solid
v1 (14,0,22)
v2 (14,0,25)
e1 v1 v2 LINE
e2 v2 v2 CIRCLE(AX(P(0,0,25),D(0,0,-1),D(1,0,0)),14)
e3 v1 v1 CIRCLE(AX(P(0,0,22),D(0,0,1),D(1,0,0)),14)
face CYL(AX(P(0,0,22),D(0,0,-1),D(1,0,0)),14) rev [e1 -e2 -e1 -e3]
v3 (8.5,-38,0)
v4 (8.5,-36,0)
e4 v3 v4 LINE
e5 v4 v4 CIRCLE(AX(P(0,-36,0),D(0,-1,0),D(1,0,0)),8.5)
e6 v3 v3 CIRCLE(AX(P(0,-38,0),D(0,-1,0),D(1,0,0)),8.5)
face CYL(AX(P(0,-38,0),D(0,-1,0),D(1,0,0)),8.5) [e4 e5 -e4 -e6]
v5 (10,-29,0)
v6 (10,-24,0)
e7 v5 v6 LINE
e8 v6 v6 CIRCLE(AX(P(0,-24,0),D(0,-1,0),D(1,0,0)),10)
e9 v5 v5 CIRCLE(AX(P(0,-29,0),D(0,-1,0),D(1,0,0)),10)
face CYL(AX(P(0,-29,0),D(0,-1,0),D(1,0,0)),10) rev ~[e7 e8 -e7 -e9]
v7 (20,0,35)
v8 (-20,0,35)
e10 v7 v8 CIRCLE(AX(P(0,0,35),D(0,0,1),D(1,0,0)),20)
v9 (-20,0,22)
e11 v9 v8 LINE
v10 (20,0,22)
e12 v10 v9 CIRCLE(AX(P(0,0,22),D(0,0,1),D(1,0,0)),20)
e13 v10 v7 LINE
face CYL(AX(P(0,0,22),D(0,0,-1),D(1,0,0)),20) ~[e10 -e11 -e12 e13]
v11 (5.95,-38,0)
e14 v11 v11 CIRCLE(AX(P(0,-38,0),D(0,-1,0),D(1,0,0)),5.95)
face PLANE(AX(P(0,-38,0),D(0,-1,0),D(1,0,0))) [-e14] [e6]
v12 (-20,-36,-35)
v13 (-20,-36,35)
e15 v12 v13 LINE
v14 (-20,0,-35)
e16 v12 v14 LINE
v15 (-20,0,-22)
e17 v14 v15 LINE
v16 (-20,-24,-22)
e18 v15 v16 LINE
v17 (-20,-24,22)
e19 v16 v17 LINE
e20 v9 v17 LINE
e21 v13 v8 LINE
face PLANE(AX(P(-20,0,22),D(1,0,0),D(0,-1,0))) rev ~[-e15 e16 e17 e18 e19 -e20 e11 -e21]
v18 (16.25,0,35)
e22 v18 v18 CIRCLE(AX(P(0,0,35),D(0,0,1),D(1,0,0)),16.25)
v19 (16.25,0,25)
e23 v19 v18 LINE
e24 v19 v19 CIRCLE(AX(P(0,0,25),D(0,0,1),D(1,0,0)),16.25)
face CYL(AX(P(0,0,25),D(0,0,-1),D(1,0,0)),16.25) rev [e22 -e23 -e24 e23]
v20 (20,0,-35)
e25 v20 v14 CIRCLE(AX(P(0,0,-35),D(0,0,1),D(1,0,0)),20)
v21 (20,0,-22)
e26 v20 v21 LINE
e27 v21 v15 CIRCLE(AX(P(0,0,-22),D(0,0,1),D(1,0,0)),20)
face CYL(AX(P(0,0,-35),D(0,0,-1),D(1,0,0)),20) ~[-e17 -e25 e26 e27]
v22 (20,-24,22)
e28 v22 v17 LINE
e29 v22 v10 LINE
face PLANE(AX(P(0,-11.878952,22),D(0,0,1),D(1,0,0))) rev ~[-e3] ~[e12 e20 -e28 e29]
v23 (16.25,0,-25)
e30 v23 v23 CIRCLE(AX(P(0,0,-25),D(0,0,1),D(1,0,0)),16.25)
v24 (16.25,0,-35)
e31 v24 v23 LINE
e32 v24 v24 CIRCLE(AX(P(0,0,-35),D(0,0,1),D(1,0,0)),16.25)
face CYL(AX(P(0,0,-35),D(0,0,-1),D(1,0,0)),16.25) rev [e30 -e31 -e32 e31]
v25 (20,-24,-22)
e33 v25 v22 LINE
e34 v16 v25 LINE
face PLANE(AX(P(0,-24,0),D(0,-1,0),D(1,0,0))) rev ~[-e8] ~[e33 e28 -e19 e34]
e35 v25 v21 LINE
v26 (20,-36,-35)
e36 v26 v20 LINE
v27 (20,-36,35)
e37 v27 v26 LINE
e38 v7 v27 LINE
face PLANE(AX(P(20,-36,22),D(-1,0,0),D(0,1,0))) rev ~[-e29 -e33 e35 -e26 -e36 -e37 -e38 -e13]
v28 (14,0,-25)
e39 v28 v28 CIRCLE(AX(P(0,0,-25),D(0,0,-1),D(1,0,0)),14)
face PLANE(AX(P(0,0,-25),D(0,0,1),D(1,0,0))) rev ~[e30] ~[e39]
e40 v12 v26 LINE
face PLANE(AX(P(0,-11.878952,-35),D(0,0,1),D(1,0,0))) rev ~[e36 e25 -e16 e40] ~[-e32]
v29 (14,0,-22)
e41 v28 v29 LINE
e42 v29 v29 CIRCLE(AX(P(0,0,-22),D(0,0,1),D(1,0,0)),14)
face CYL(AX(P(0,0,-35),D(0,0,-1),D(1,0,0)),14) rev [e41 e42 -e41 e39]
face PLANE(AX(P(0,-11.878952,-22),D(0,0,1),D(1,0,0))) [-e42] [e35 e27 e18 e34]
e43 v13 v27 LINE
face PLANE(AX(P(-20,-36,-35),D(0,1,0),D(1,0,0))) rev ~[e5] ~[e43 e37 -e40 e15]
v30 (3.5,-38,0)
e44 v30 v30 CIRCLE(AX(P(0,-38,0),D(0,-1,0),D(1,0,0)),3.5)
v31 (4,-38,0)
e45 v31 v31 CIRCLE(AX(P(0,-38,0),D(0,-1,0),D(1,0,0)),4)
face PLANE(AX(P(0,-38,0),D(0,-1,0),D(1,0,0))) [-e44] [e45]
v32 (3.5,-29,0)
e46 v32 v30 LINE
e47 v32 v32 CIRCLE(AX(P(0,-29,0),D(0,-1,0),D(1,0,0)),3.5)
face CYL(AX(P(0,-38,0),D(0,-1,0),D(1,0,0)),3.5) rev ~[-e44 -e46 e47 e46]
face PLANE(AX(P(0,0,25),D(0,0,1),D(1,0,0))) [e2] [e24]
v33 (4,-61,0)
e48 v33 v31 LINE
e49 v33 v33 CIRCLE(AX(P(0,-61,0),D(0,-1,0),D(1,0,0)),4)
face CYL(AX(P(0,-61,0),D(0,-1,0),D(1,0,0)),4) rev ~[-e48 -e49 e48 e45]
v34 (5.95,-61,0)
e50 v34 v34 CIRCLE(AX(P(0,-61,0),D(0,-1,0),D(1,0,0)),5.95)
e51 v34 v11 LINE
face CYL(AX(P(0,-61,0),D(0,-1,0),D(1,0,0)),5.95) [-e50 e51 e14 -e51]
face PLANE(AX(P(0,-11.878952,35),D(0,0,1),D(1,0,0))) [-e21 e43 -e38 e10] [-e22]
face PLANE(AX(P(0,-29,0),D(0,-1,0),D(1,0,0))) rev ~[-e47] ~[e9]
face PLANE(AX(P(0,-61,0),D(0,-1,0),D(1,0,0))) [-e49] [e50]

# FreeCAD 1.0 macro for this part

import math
import FreeCAD as App
import Part
import Sketcher

V = App.Vector

doc = App.newDocument("Part")
body = doc.addObject("PartDesign::Body", "Body")

# Sketch on XY plane
sketch1 = doc.addObject("Sketcher::SketchObject", "Sketch")
body.addObject(sketch1)
sketch1.AttachmentSupport = (doc.XY_Plane, [""])
sketch1.MapMode = "FlatFace"
sketch1.addGeometry(Part.Circle(V(0, 0, 0), V(0, 0, 1), 10), False)
sketch1.addConstraint(Sketcher.Constraint("Coincident", 0, 3, -1, 1))
sketch1.addConstraint(Sketcher.Constraint("Diameter", 0, 20.0))
pad1 = doc.addObject("PartDesign::Pad", "Pad")
body.addObject(pad1)
pad1.Profile = sketch1
pad1.Length = 5
pad1.Reversed = True
body2 = doc.addObject("PartDesign::Body", "Body001")
doc.recompute()

body.Placement = App.Placement(V(0, 0, 0), App.Rotation(V(1, 0, 0), 90))
boolean = doc.addObject("PartDesign::Boolean", "Boolean")
body2.addObject(boolean)
boolean.Type = "Fuse"
boolean.addObjects([body])
body3 = doc.addObject("PartDesign::Body", "Body002")
doc.recompute()

body2.Placement = App.Placement(V(0, 7, 0), App.Rotation(V(0, 0, 1), 0))
boolean2 = doc.addObject("PartDesign::Boolean", "Boolean001")
body3.addObject(boolean2)
boolean2.Type = "Fuse"
boolean2.addObjects([body2])
body4 = doc.addObject("PartDesign::Body", "Body003")

# Sketch on XY plane
sketch2 = doc.addObject("Sketcher::SketchObject", "Sketch001")
body4.addObject(sketch2)
sketch2.AttachmentSupport = (doc.getObject("XY_Plane003"), [""])
sketch2.MapMode = "FlatFace"
sketch2.addGeometry(Part.LineSegment(V(-20, 35, 0), V(-20, -35, 0)), False)
sketch2.addGeometry(Part.LineSegment(V(-20, -35, 0), V(20, -35, 0)), False)
sketch2.addGeometry(Part.LineSegment(V(20, -35, 0), V(20, 35, 0)), False)
sketch2.addGeometry(Part.LineSegment(V(20, 35, 0), V(-20, 35, 0)), False)
sketch2.addGeometry(Part.Circle(V(0, 0, 0), V(0, 0, 1), 3.5), False)
sketch2.addConstraint(Sketcher.Constraint("Coincident", 0, 2, 1, 1))
sketch2.addConstraint(Sketcher.Constraint("Coincident", 1, 2, 2, 1))
sketch2.addConstraint(Sketcher.Constraint("Coincident", 2, 2, 3, 1))
sketch2.addConstraint(Sketcher.Constraint("Coincident", 3, 2, 0, 1))
sketch2.addConstraint(Sketcher.Constraint("Vertical", 0))
sketch2.addConstraint(Sketcher.Constraint("Horizontal", 1))
sketch2.addConstraint(Sketcher.Constraint("Vertical", 2))
sketch2.addConstraint(Sketcher.Constraint("Horizontal", 3))
sketch2.addConstraint(Sketcher.Constraint("Coincident", 4, 3, -1, 1))
sketch2.addConstraint(Sketcher.Constraint("Symmetric", 0, 2, 2, 2, -1, 1))
sketch2.addConstraint(Sketcher.Constraint("Diameter", 4, 7.0))
sketch2.addConstraint(Sketcher.Constraint("DistanceX", 1, 1, 1, 2, 40.0))
sketch2.addConstraint(Sketcher.Constraint("DistanceY", 0, 2, 0, 1, 70.0))
pad2 = doc.addObject("PartDesign::Pad", "Pad001")
body4.addObject(pad2)
pad2.Profile = sketch2
pad2.Length = 12
pad2.Reversed = True
body5 = doc.addObject("PartDesign::Body", "Body004")
doc.recompute()

body4.Placement = App.Placement(V(0, 0, 0), App.Rotation(V(1, 0, 0), 90))
boolean3 = doc.addObject("PartDesign::Boolean", "Boolean002")
body5.addObject(boolean3)
boolean3.Type = "Fuse"
boolean3.addObjects([body4])
doc.recompute()

boolean4 = doc.addObject("PartDesign::Boolean", "Boolean003")
body5.addObject(boolean4)
boolean4.Type = "Cut"
boolean4.addObjects([body3])
body6 = doc.addObject("PartDesign::Body", "Body005")
doc.recompute()

body5.Placement = App.Placement(V(0, -36, 0), App.Rotation(V(0, 0, 1), 0))
boolean5 = doc.addObject("PartDesign::Boolean", "Boolean004")
body6.addObject(boolean5)
boolean5.Type = "Fuse"
boolean5.addObjects([body5])
body7 = doc.addObject("PartDesign::Body", "Body006")

# Sketch on XY plane
sketch3 = doc.addObject("Sketcher::SketchObject", "Sketch002")
body7.addObject(sketch3)
sketch3.AttachmentSupport = (doc.getObject("XY_Plane006"), [""])
sketch3.MapMode = "FlatFace"
sketch3.addGeometry(Part.Circle(V(0, 0, 0), V(0, 0, 1), 8.5), False)
sketch3.addGeometry(Part.Circle(V(0, 0, 0), V(0, 0, 1), 3.5), False)
sketch3.addConstraint(Sketcher.Constraint("Coincident", 0, 3, -1, 1))
sketch3.addConstraint(Sketcher.Constraint("Coincident", 1, 3, -1, 1))
sketch3.addConstraint(Sketcher.Constraint("Diameter", 0, 17.0))
sketch3.addConstraint(Sketcher.Constraint("Diameter", 1, 7.0))
pad3 = doc.addObject("PartDesign::Pad", "Pad002")
body7.addObject(pad3)
pad3.Profile = sketch3
pad3.Length = 2
pad3.Reversed = True
body8 = doc.addObject("PartDesign::Body", "Body007")
doc.recompute()

body7.Placement = App.Placement(V(0, 0, 0), App.Rotation(V(1, 0, 0), 90))
boolean6 = doc.addObject("PartDesign::Boolean", "Boolean005")
body8.addObject(boolean6)
boolean6.Type = "Fuse"
boolean6.addObjects([body7])
body9 = doc.addObject("PartDesign::Body", "Body008")
doc.recompute()

body8.Placement = App.Placement(V(0, -38, 0), App.Rotation(V(0, 0, 1), 0))
boolean7 = doc.addObject("PartDesign::Boolean", "Boolean006")
body9.addObject(boolean7)
boolean7.Type = "Fuse"
boolean7.addObjects([body8])
body10 = doc.addObject("PartDesign::Body", "Body009")

# Sketch on XY plane
sketch4 = doc.addObject("Sketcher::SketchObject", "Sketch003")
body10.addObject(sketch4)
sketch4.AttachmentSupport = (doc.getObject("XY_Plane009"), [""])
sketch4.MapMode = "FlatFace"
sketch4.addGeometry(Part.Circle(V(0, 0, 0), V(0, 0, 1), 6), False)
sketch4.addGeometry(Part.Circle(V(0, 0, 0), V(0, 0, 1), 4), False)
sketch4.addConstraint(Sketcher.Constraint("Coincident", 0, 3, -1, 1))
sketch4.addConstraint(Sketcher.Constraint("Coincident", 1, 3, -1, 1))
sketch4.addConstraint(Sketcher.Constraint("Diameter", 1, 8.0))
sketch4.addConstraint(Sketcher.Constraint("Diameter", 0, 11.9))
pad4 = doc.addObject("PartDesign::Pad", "Pad003")
body10.addObject(pad4)
pad4.Profile = sketch4
pad4.Length = 25
pad4.Reversed = True
body11 = doc.addObject("PartDesign::Body", "Body010")
doc.recompute()

body10.Placement = App.Placement(V(0, 0, 0), App.Rotation(V(1, 0, 0), 90))
boolean8 = doc.addObject("PartDesign::Boolean", "Boolean007")
body11.addObject(boolean8)
boolean8.Type = "Fuse"
boolean8.addObjects([body10])
body12 = doc.addObject("PartDesign::Body", "Body011")
doc.recompute()

body11.Placement = App.Placement(V(0, -61, 0), App.Rotation(V(0, 0, 1), 0))
boolean9 = doc.addObject("PartDesign::Boolean", "Boolean008")
body12.addObject(boolean9)
boolean9.Type = "Fuse"
boolean9.addObjects([body11])
body13 = doc.addObject("PartDesign::Body", "Body012")

# Sketch on XY plane
sketch5 = doc.addObject("Sketcher::SketchObject", "Sketch004")
body13.addObject(sketch5)
sketch5.AttachmentSupport = (doc.getObject("XY_Plane012"), [""])
sketch5.MapMode = "FlatFace"
sketch5.AttachmentOffset = App.Placement(V(0, 0, 3), App.Rotation())
sketch5.addGeometry(Part.Circle(V(0, 0, 0), V(0, 0, 1), 16), False)
sketch5.addConstraint(Sketcher.Constraint("Coincident", 0, 3, -1, 1))
sketch5.addConstraint(Sketcher.Constraint("Diameter", 0, 32.5))
pad5 = doc.addObject("PartDesign::Pad", "Pad004")
body13.addObject(pad5)
pad5.Profile = sketch5
pad5.Length = 10
body14 = doc.addObject("PartDesign::Body", "Body013")

# Sketch on XY plane
sketch6 = doc.addObject("Sketcher::SketchObject", "Sketch005")
body14.addObject(sketch6)
sketch6.AttachmentSupport = (doc.getObject("XY_Plane013"), [""])
sketch6.MapMode = "FlatFace"
sketch6.addGeometry(Part.ArcOfCircle(Part.Circle(V(0, 0, 0), V(0, 0, 1), 20), math.radians(0), math.radians(180)), False)
sketch6.addGeometry(Part.LineSegment(V(-20, 0, 0), V(-20, -36, 0)), False)
sketch6.addGeometry(Part.LineSegment(V(-20, -36, 0), V(20, -36, 0)), False)
sketch6.addGeometry(Part.LineSegment(V(20, -36, 0), V(20, 0, 0)), False)
sketch6.addGeometry(Part.Circle(V(0, 0, 0), V(0, 0, 1), 14), False)
sketch6.addConstraint(Sketcher.Constraint("Tangent", 0, 2, 1, 1))
sketch6.addConstraint(Sketcher.Constraint("Coincident", 1, 2, 2, 1))
sketch6.addConstraint(Sketcher.Constraint("Coincident", 2, 2, 3, 1))
sketch6.addConstraint(Sketcher.Constraint("Tangent", 3, 2, 0, 1))
sketch6.addConstraint(Sketcher.Constraint("Vertical", 1))
sketch6.addConstraint(Sketcher.Constraint("Horizontal", 2))
sketch6.addConstraint(Sketcher.Constraint("Vertical", 3))
sketch6.addConstraint(Sketcher.Constraint("Coincident", 0, 3, -1, 1))
sketch6.addConstraint(Sketcher.Constraint("Coincident", 4, 3, -1, 1))
sketch6.addConstraint(Sketcher.Constraint("Diameter", 4, 28.0))
sketch6.addConstraint(Sketcher.Constraint("Radius", 0, 20.0))
sketch6.addConstraint(Sketcher.Constraint("DistanceY", 1, 2, 1, 1, 36.0))
pad6 = doc.addObject("PartDesign::Pad", "Pad005")
body14.addObject(pad6)
pad6.Profile = sketch6
pad6.Length = 13
doc.recompute()

boolean10 = doc.addObject("PartDesign::Boolean", "Boolean009")
body14.addObject(boolean10)
boolean10.Type = "Cut"
boolean10.addObjects([body13])
body15 = doc.addObject("PartDesign::Body", "Body014")
doc.recompute()

body14.Placement = App.Placement(V(0, 0, 22), App.Rotation(V(0, 0, 1), 0))
boolean11 = doc.addObject("PartDesign::Boolean", "Boolean010")
body15.addObject(boolean11)
boolean11.Type = "Fuse"
boolean11.addObjects([body14])
body16 = doc.addObject("PartDesign::Body", "Body015")

# Sketch on XY plane
sketch7 = doc.addObject("Sketcher::SketchObject", "Sketch006")
body16.addObject(sketch7)
sketch7.AttachmentSupport = (doc.getObject("XY_Plane015"), [""])
sketch7.MapMode = "FlatFace"
sketch7.addGeometry(Part.Circle(V(0, 0, 0), V(0, 0, 1), 16), False)
sketch7.addConstraint(Sketcher.Constraint("Coincident", 0, 3, -1, 1))
sketch7.addConstraint(Sketcher.Constraint("Diameter", 0, 32.5))
pad7 = doc.addObject("PartDesign::Pad", "Pad006")
body16.addObject(pad7)
pad7.Profile = sketch7
pad7.Length = 10
body17 = doc.addObject("PartDesign::Body", "Body016")

# Sketch on XY plane
sketch8 = doc.addObject("Sketcher::SketchObject", "Sketch007")
body17.addObject(sketch8)
sketch8.AttachmentSupport = (doc.getObject("XY_Plane016"), [""])
sketch8.MapMode = "FlatFace"
sketch8.addGeometry(Part.ArcOfCircle(Part.Circle(V(0, 0, 0), V(0, 0, 1), 20), math.radians(0), math.radians(180)), False)
sketch8.addGeometry(Part.LineSegment(V(-20, 0, 0), V(-20, -36, 0)), False)
sketch8.addGeometry(Part.LineSegment(V(-20, -36, 0), V(20, -36, 0)), False)
sketch8.addGeometry(Part.LineSegment(V(20, -36, 0), V(20, 0, 0)), False)
sketch8.addGeometry(Part.Circle(V(0, 0, 0), V(0, 0, 1), 14), False)
sketch8.addConstraint(Sketcher.Constraint("Tangent", 0, 2, 1, 1))
sketch8.addConstraint(Sketcher.Constraint("Coincident", 1, 2, 2, 1))
sketch8.addConstraint(Sketcher.Constraint("Coincident", 2, 2, 3, 1))
sketch8.addConstraint(Sketcher.Constraint("Tangent", 3, 2, 0, 1))
sketch8.addConstraint(Sketcher.Constraint("Vertical", 1))
sketch8.addConstraint(Sketcher.Constraint("Horizontal", 2))
sketch8.addConstraint(Sketcher.Constraint("Vertical", 3))
sketch8.addConstraint(Sketcher.Constraint("Coincident", 0, 3, -1, 1))
sketch8.addConstraint(Sketcher.Constraint("Coincident", 4, 3, -1, 1))
sketch8.addConstraint(Sketcher.Constraint("Diameter", 4, 28.0))
sketch8.addConstraint(Sketcher.Constraint("Radius", 0, 20.0))
sketch8.addConstraint(Sketcher.Constraint("DistanceY", 1, 2, 1, 1, 36.0))
pad8 = doc.addObject("PartDesign::Pad", "Pad007")
body17.addObject(pad8)
pad8.Profile = sketch8
pad8.Length = 13
doc.recompute()

boolean12 = doc.addObject("PartDesign::Boolean", "Boolean011")
body17.addObject(boolean12)
boolean12.Type = "Cut"
boolean12.addObjects([body16])
body18 = doc.addObject("PartDesign::Body", "Body017")
doc.recompute()

body17.Placement = App.Placement(V(0, 0, -35), App.Rotation(V(0, 0, 1), 0))
boolean13 = doc.addObject("PartDesign::Boolean", "Boolean012")
body18.addObject(boolean13)
boolean13.Type = "Fuse"
boolean13.addObjects([body17])
doc.recompute()

boolean14 = doc.addObject("PartDesign::Boolean", "Boolean013")
body18.addObject(boolean14)
boolean14.Type = "Fuse"
boolean14.addObjects([body6])
doc.recompute()

boolean15 = doc.addObject("PartDesign::Boolean", "Boolean014")
body18.addObject(boolean15)
boolean15.Type = "Fuse"
boolean15.addObjects([body9])
doc.recompute()

boolean16 = doc.addObject("PartDesign::Boolean", "Boolean015")
body18.addObject(boolean16)
boolean16.Type = "Fuse"
boolean16.addObjects([body12])
doc.recompute()

boolean17 = doc.addObject("PartDesign::Boolean", "Boolean016")
body18.addObject(boolean17)
boolean17.Type = "Fuse"
boolean17.addObjects([body15])

doc.recompute()
